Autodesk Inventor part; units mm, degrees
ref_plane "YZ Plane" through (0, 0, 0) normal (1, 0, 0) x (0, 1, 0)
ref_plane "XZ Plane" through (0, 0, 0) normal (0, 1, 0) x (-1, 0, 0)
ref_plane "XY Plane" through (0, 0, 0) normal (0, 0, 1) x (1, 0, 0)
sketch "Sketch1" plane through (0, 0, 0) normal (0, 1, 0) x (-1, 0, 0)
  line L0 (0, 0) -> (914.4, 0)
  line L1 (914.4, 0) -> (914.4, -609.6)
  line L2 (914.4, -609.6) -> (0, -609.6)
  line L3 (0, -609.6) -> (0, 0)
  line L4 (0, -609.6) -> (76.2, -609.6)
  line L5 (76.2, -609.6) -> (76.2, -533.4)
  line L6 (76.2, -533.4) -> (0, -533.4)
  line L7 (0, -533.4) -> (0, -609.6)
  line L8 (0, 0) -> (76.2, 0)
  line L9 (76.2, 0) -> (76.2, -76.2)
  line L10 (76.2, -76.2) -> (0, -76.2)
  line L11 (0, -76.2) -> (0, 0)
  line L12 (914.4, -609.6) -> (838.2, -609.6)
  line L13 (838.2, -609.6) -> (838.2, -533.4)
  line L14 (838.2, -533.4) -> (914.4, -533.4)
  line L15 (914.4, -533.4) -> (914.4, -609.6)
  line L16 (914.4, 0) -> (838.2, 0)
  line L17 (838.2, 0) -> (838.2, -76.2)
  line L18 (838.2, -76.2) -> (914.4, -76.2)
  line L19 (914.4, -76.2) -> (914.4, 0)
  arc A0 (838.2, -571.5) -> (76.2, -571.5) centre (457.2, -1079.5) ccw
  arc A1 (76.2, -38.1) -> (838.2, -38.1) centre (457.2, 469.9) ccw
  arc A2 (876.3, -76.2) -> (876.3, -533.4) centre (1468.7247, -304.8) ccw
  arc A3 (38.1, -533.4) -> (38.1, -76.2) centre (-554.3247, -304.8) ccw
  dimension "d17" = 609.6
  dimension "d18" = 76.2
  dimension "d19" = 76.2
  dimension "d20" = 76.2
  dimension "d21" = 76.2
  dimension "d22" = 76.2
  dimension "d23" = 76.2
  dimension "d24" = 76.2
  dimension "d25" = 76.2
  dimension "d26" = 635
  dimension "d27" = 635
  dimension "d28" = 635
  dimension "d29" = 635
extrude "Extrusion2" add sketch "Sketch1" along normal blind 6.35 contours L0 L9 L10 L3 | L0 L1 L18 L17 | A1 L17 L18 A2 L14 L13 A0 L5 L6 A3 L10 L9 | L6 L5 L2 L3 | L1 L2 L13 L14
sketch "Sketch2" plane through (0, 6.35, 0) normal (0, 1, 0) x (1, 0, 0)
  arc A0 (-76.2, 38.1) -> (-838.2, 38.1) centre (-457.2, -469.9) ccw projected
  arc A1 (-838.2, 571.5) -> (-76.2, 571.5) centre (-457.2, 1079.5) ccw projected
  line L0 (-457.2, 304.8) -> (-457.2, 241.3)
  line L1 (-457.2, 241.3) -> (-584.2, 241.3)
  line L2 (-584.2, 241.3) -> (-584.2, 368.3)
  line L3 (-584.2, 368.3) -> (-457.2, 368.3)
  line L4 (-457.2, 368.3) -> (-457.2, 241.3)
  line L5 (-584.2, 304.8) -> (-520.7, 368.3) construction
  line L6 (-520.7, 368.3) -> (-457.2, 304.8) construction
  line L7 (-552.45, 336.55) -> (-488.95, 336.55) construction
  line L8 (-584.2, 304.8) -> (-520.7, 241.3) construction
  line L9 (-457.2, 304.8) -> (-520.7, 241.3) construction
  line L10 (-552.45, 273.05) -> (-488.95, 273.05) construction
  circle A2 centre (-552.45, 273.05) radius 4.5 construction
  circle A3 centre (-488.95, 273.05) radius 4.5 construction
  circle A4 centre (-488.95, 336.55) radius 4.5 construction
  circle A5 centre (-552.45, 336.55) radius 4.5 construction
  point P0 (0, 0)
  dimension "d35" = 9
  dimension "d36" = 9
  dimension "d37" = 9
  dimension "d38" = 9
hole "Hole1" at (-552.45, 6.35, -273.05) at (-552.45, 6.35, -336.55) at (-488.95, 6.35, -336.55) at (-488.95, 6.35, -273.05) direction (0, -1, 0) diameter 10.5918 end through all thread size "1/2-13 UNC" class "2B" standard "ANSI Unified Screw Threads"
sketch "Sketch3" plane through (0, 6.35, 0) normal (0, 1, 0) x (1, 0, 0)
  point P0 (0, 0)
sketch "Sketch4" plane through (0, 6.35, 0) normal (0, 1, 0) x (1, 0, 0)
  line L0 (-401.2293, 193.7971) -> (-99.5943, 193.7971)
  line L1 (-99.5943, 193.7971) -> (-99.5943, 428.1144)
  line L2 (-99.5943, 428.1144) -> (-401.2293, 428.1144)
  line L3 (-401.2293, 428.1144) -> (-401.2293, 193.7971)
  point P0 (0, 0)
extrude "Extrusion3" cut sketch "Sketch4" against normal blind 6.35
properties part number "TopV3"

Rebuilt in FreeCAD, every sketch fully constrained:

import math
import FreeCAD as App
import Part
import Sketcher

V = App.Vector
Q = App.Units.Quantity


def add_polygon(sketch, points):
    """Adds a closed chain of lines whose ends are joined by coincident constraints."""
    first, n = sketch.GeometryCount, len(points)
    for a, b in zip(points, points[1:] + points[:1]):
        sketch.addGeometry(Part.LineSegment(App.Vector(*a, 0), App.Vector(*b, 0)), False)
    for i in range(n):
        sketch.addConstraint(Sketcher.Constraint("Coincident", first + i, 2, first + (i + 1) % n, 1))

doc = App.newDocument("Part")
body = doc.addObject("PartDesign::Body", "Body")

# Sketch on XZ plane
sketch1 = body.newObject("Sketcher::SketchObject", "Sketch")
sketch1.AttachmentSupport = (doc.getObject("XZ_Plane"), [""])
sketch1.MapMode = "FlatFace"
sketch1.addGeometry([
    Part.LineSegment(V(-76, 0, 0), V(0, 0, 0)),  # 0
    Part.LineSegment(V(0, 0, 0), V(0, -76, 0)),  # 1
    Part.LineSegment(V(0, -76, 0), V(-38, -76, 0)),  # 2
    Part.ArcOfCircle(Part.Circle(V(554, -305, 0), V(0, 0, 1), 635), math.radians(159), math.radians(201)),  # 3
    Part.LineSegment(V(-38, -533, 0), V(0, -533, 0)),  # 4
    Part.LineSegment(V(0, -533, 0), V(0, -610, 0)),  # 5
    Part.LineSegment(V(0, -610, 0), V(-76, -610, 0)),  # 6
    Part.LineSegment(V(-76, -610, 0), V(-76, -572, 0)),  # 7
    Part.ArcOfCircle(Part.Circle(V(-457, -1080, 0), V(0, 0, 1), 635), math.radians(53), math.radians(127)),  # 8
    Part.LineSegment(V(-838, -572, 0), V(-838, -610, 0)),  # 9
    Part.LineSegment(V(-838, -610, 0), V(-914, -610, 0)),  # 10
    Part.LineSegment(V(-914, -610, 0), V(-914, -533, 0)),  # 11
    Part.LineSegment(V(-914, -533, 0), V(-876, -533, 0)),  # 12
    Part.ArcOfCircle(Part.Circle(V(-1469, -305, 0), V(0, 0, 1), 635), math.radians(-21), math.radians(21)),  # 13
    Part.LineSegment(V(-876, -76, 0), V(-914, -76, 0)),  # 14
    Part.LineSegment(V(-914, -76, 0), V(-914, 0, 0)),  # 15
    Part.LineSegment(V(-914, 0, 0), V(-838, 0, 0)),  # 16
    Part.LineSegment(V(-838, 0, 0), V(-838, -38, 0)),  # 17
    Part.ArcOfCircle(Part.Circle(V(-457, 470, 0), V(0, 0, 1), 635), math.radians(-127), math.radians(-53)),  # 18
    Part.LineSegment(V(-76, -38, 0), V(-76, 0, 0)),  # 19
], False)
sketch1.addConstraint([
    Sketcher.Constraint("Coincident", 0, 2, 1, 1),
    Sketcher.Constraint("Coincident", 1, 2, 2, 1),
    Sketcher.Constraint("Coincident", 2, 2, 3, 1),
    Sketcher.Constraint("Coincident", 3, 2, 4, 1),
    Sketcher.Constraint("Coincident", 4, 2, 5, 1),
    Sketcher.Constraint("Coincident", 5, 2, 6, 1),
    Sketcher.Constraint("Coincident", 6, 2, 7, 1),
    Sketcher.Constraint("Coincident", 7, 2, 8, 1),
    Sketcher.Constraint("Coincident", 8, 2, 9, 1),
    Sketcher.Constraint("Coincident", 9, 2, 10, 1),
    Sketcher.Constraint("Coincident", 10, 2, 11, 1),
    Sketcher.Constraint("Coincident", 11, 2, 12, 1),
    Sketcher.Constraint("Coincident", 12, 2, 13, 1),
    Sketcher.Constraint("Coincident", 13, 2, 14, 1),
    Sketcher.Constraint("Coincident", 14, 2, 15, 1),
    Sketcher.Constraint("Coincident", 15, 2, 16, 1),
    Sketcher.Constraint("Coincident", 16, 2, 17, 1),
    Sketcher.Constraint("Coincident", 17, 2, 18, 1),
    Sketcher.Constraint("Coincident", 18, 2, 19, 1),
    Sketcher.Constraint("Coincident", 19, 2, 0, 1),
    Sketcher.Constraint("Horizontal", 0),
    Sketcher.Constraint("Vertical", 1),
    Sketcher.Constraint("Horizontal", 2),
    Sketcher.Constraint("Horizontal", 4),
    Sketcher.Constraint("Vertical", 5),
    Sketcher.Constraint("Horizontal", 6),
    Sketcher.Constraint("Vertical", 7),
    Sketcher.Constraint("Vertical", 9),
    Sketcher.Constraint("Horizontal", 10),
    Sketcher.Constraint("Vertical", 11),
    Sketcher.Constraint("Horizontal", 12),
    Sketcher.Constraint("Horizontal", 14),
    Sketcher.Constraint("Vertical", 15),
    Sketcher.Constraint("Horizontal", 16),
    Sketcher.Constraint("Vertical", 17),
    Sketcher.Constraint("Vertical", 19),
    Sketcher.Constraint("Coincident", 0, 2, -1, 1),
    Sketcher.Constraint("Equal", 3, 8),
    Sketcher.Constraint("Equal", 8, 13),
    Sketcher.Constraint("Equal", 13, 18),
    Sketcher.Constraint("PointOnObject", 4, 2, -2),
    Sketcher.Constraint("PointOnObject", 15, 2, -1),
    Sketcher.Constraint("Horizontal", 3, 3, 13, 3),
    Sketcher.Constraint("Horizontal", 7, 2, 8, 2),
    Sketcher.Constraint("Horizontal", 6, 2, 9, 2),
    Sketcher.Constraint("Horizontal", 4, 2, 11, 2),
    Sketcher.Constraint("Horizontal", 17, 2, 18, 2),
    Sketcher.Constraint("Vertical", 8, 3, 18, 3),
    Sketcher.Constraint("Vertical", 2, 2, 3, 2),
    Sketcher.Constraint("Vertical", 11, 2, 14, 2),
    Sketcher.Constraint("Vertical", 9, 2, 16, 2),
    Sketcher.Constraint("Equal", 6, 10),
    Sketcher.Constraint("Equal", 4, 12),
    Sketcher.Constraint("Equal", 12, 14),
    Sketcher.Constraint("Equal", 16, 1),
    Sketcher.Constraint("Equal", 1, 5),
    Sketcher.Constraint("Equal", 14, 7),
    Sketcher.Constraint("Equal", 9, 17),
    Sketcher.Constraint("Radius", 3, Q("25 in")),
    Sketcher.Constraint("DistanceX", 0, 1, 0, 2, Q("3 in")),
    Sketcher.Constraint("DistanceY", 5, 2, -1, 1, Q("24 in")),
    Sketcher.Constraint("DistanceX", 2, 2, 2, 1, Q("1.5 in")),
    Sketcher.Constraint("DistanceX", 8, 3, -1, 1, Q("18 in")),
])
pad1 = body.newObject("PartDesign::Pad", "Pad")
pad1.Profile = sketch1
pad1.Length = Q("0.25 in")
pad1.Reversed = True

# Sketch on XZ plane
sketch2 = body.newObject("Sketcher::SketchObject", "Sketch001")
sketch2.AttachmentSupport = (doc.getObject("XZ_Plane"), [""])
sketch2.MapMode = "FlatFace"
sketch2.AttachmentOffset = App.Placement(V(0, 0, -0.25 * 25.4), App.Rotation())
sketch2.addGeometry([
    Part.Circle(V(-552, -273, 0), V(0, 0, 1), 5),
    Part.Circle(V(-552, -337, 0), V(0, 0, 1), 5),
    Part.Circle(V(-489, -337, 0), V(0, 0, 1), 5),
    Part.Circle(V(-489, -273, 0), V(0, 0, 1), 5),
], False)
sketch2.addConstraint([
    Sketcher.Constraint("Equal", 0, 1),
    Sketcher.Constraint("Equal", 1, 2),
    Sketcher.Constraint("Equal", 2, 3),
    Sketcher.Constraint("Horizontal", 1, 3, 2, 3),
    Sketcher.Constraint("Horizontal", 0, 3, 3, 3),
    Sketcher.Constraint("Vertical", 0, 3, 1, 3),
    Sketcher.Constraint("Vertical", 2, 3, 3, 3),
    Sketcher.Constraint("Diameter", 0, Q("0.417 in")),
    Sketcher.Constraint("DistanceY", 1, 3, 0, 3, Q("2.5 in")),
    Sketcher.Constraint("DistanceX", 1, 3, 2, 3, Q("2.5 in")),
    Sketcher.Constraint("DistanceX", 0, 3, -1, 1, Q("21.75 in")),
    Sketcher.Constraint("DistanceY", 0, 3, -1, 1, Q("10.75 in")),
])
doc.recompute()
hole = body.newObject("PartDesign::Hole", "Hole")
hole.Profile = sketch2
hole.ThreadType = "None"
hole.Diameter = Q("0.417 in")
hole.DepthType = "ThroughAll"
hole.Reversed = True

# Sketch on XZ plane
sketch3 = body.newObject("Sketcher::SketchObject", "Sketch002")
sketch3.AttachmentSupport = (doc.getObject("XZ_Plane"), [""])
sketch3.MapMode = "FlatFace"
sketch3.AttachmentOffset = App.Placement(V(0, 0, -0.25 * 25.4), App.Rotation())
add_polygon(sketch3, [(-401, -428), (-401, -194), (-100, -194), (-100, -428)])  # lines 0-3
sketch3.addConstraint([
    Sketcher.Constraint("Vertical", 0),
    Sketcher.Constraint("Horizontal", 1),
    Sketcher.Constraint("Vertical", 2),
    Sketcher.Constraint("Horizontal", 3),
    Sketcher.Constraint("DistanceX", 1, 1, 1, 2, Q("11.8754 in")),
    Sketcher.Constraint("DistanceY", 0, 1, 0, 2, Q("9.2251 in")),
    Sketcher.Constraint("DistanceY", 0, 2, -1, 1, Q("7.6298 in")),
    Sketcher.Constraint("DistanceX", 0, 2, -1, 1, Q("401.2293 mm")),
])
pocket1 = body.newObject("PartDesign::Pocket", "Pocket")
pocket1.Profile = sketch3
pocket1.Length = Q("0.25 in")
pocket1.Reversed = True

doc.recompute()
